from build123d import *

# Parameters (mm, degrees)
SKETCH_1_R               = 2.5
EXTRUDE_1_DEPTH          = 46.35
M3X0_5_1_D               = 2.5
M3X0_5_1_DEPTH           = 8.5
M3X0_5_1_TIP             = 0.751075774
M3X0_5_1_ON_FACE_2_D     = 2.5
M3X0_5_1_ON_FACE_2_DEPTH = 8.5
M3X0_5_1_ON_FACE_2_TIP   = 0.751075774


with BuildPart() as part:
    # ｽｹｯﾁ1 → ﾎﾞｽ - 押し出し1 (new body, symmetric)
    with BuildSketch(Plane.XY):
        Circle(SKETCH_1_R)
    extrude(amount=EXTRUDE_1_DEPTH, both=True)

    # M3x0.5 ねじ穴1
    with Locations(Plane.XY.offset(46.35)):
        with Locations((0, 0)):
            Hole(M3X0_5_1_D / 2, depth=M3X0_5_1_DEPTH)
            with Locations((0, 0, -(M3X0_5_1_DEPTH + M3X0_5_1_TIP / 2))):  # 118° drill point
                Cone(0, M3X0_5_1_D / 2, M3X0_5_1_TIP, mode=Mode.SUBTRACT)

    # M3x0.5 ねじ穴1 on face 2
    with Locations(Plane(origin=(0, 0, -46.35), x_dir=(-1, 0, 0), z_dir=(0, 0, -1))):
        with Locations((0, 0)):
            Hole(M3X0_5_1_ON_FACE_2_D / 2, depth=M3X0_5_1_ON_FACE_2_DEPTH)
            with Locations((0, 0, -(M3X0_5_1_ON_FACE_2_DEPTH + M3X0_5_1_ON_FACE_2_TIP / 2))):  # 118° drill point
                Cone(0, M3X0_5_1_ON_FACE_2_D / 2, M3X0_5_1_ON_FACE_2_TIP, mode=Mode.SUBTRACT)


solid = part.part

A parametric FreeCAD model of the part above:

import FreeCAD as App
import Part
import Sketcher
Q = App.Units.Quantity

doc = App.newDocument("Part")
params = doc.addObject("Spreadsheet::Sheet", "Params")
for row, (alias, value) in enumerate([
    ("sketch1_diameter", "5 mm"),
    ("pad1_length", "92.7 mm"),
    ("sketch2_diameter", "2.5 mm"),
    ("hole_diameter", "2.5 mm"),
    ("hole_depth", "8.5 mm"),
    ("sketch3_diameter", "2.5 mm"),
    ("hole2_diameter", "2.5 mm"),
    ("hole2_depth", "8.5 mm"),
], start=1):
    params.set(f"A{row}", alias)
    params.set(f"B{row}", "=" + value)
    params.setAlias(f"B{row}", alias)

body = doc.addObject("PartDesign::Body", "Body")

sketch1 = body.newObject("Sketcher::SketchObject", "Sketch")
sketch1.AttachmentSupport = (doc.getObject("XY_Plane"), [""])
sketch1.MapMode = "FlatFace"
sketch1.addGeometry(Part.Circle(App.Vector(0, 0, 0), App.Vector(0, 0, 1), 2.5), False)
sketch1.addConstraint([
    Sketcher.Constraint("Coincident", 0, 3, -1, 1),
    Sketcher.Constraint("Diameter", 0, Q("5 mm")),
])
sketch1.setExpression("Constraints[1]", "Params.sketch1_diameter")
pad1 = body.newObject("PartDesign::Pad", "Pad")
pad1.Profile = sketch1
pad1.setExpression("Length", "Params.pad1_length")
pad1.Midplane = True

sketch2 = body.newObject("Sketcher::SketchObject", "Sketch001")
sketch2.AttachmentSupport = (doc.getObject("XY_Plane"), [""])
sketch2.MapMode = "FlatFace"
sketch2.AttachmentOffset = App.Placement(App.Vector(0, 0, 46.35), App.Rotation())
sketch2.addGeometry(Part.Circle(App.Vector(0, 0, 0), App.Vector(0, 0, 1), 1.25), False)
sketch2.addConstraint([
    Sketcher.Constraint("Coincident", 0, 3, -1, 1),
    Sketcher.Constraint("Diameter", 0, Q("2.5 mm")),
])
sketch2.setExpression("Constraints[1]", "Params.sketch2_diameter")
doc.recompute()
hole = body.newObject("PartDesign::Hole", "Hole")
hole.Profile = sketch2
hole.ThreadType = "None"
hole.setExpression("Diameter", "Params.hole_diameter")
hole.DepthType = "Dimension"
hole.setExpression("Depth", "Params.hole_depth")
hole.DrillPoint = "Angled"
hole.DrillPointAngle = 118

sketch3 = body.newObject("Sketcher::SketchObject", "Sketch002")
sketch3.AttachmentSupport = (doc.getObject("XY_Plane"), [""])
sketch3.MapMode = "FlatFace"
sketch3.AttachmentOffset = App.Placement(App.Vector(0, 0, -46.35), App.Rotation())
sketch3.addGeometry(Part.Circle(App.Vector(0, 0, 0), App.Vector(0, 0, 1), 1.25), False)
sketch3.addConstraint([
    Sketcher.Constraint("Coincident", 0, 3, -1, 1),
    Sketcher.Constraint("Diameter", 0, Q("2.5 mm")),
])
sketch3.setExpression("Constraints[1]", "Params.sketch3_diameter")
doc.recompute()
hole2 = body.newObject("PartDesign::Hole", "Hole001")
hole2.Profile = sketch3
hole2.ThreadType = "None"
hole2.setExpression("Diameter", "Params.hole2_diameter")
hole2.DepthType = "Dimension"
hole2.setExpression("Depth", "Params.hole2_depth")
hole2.DrillPoint = "Angled"
hole2.DrillPointAngle = 118
hole2.Reversed = True

doc.recompute()
